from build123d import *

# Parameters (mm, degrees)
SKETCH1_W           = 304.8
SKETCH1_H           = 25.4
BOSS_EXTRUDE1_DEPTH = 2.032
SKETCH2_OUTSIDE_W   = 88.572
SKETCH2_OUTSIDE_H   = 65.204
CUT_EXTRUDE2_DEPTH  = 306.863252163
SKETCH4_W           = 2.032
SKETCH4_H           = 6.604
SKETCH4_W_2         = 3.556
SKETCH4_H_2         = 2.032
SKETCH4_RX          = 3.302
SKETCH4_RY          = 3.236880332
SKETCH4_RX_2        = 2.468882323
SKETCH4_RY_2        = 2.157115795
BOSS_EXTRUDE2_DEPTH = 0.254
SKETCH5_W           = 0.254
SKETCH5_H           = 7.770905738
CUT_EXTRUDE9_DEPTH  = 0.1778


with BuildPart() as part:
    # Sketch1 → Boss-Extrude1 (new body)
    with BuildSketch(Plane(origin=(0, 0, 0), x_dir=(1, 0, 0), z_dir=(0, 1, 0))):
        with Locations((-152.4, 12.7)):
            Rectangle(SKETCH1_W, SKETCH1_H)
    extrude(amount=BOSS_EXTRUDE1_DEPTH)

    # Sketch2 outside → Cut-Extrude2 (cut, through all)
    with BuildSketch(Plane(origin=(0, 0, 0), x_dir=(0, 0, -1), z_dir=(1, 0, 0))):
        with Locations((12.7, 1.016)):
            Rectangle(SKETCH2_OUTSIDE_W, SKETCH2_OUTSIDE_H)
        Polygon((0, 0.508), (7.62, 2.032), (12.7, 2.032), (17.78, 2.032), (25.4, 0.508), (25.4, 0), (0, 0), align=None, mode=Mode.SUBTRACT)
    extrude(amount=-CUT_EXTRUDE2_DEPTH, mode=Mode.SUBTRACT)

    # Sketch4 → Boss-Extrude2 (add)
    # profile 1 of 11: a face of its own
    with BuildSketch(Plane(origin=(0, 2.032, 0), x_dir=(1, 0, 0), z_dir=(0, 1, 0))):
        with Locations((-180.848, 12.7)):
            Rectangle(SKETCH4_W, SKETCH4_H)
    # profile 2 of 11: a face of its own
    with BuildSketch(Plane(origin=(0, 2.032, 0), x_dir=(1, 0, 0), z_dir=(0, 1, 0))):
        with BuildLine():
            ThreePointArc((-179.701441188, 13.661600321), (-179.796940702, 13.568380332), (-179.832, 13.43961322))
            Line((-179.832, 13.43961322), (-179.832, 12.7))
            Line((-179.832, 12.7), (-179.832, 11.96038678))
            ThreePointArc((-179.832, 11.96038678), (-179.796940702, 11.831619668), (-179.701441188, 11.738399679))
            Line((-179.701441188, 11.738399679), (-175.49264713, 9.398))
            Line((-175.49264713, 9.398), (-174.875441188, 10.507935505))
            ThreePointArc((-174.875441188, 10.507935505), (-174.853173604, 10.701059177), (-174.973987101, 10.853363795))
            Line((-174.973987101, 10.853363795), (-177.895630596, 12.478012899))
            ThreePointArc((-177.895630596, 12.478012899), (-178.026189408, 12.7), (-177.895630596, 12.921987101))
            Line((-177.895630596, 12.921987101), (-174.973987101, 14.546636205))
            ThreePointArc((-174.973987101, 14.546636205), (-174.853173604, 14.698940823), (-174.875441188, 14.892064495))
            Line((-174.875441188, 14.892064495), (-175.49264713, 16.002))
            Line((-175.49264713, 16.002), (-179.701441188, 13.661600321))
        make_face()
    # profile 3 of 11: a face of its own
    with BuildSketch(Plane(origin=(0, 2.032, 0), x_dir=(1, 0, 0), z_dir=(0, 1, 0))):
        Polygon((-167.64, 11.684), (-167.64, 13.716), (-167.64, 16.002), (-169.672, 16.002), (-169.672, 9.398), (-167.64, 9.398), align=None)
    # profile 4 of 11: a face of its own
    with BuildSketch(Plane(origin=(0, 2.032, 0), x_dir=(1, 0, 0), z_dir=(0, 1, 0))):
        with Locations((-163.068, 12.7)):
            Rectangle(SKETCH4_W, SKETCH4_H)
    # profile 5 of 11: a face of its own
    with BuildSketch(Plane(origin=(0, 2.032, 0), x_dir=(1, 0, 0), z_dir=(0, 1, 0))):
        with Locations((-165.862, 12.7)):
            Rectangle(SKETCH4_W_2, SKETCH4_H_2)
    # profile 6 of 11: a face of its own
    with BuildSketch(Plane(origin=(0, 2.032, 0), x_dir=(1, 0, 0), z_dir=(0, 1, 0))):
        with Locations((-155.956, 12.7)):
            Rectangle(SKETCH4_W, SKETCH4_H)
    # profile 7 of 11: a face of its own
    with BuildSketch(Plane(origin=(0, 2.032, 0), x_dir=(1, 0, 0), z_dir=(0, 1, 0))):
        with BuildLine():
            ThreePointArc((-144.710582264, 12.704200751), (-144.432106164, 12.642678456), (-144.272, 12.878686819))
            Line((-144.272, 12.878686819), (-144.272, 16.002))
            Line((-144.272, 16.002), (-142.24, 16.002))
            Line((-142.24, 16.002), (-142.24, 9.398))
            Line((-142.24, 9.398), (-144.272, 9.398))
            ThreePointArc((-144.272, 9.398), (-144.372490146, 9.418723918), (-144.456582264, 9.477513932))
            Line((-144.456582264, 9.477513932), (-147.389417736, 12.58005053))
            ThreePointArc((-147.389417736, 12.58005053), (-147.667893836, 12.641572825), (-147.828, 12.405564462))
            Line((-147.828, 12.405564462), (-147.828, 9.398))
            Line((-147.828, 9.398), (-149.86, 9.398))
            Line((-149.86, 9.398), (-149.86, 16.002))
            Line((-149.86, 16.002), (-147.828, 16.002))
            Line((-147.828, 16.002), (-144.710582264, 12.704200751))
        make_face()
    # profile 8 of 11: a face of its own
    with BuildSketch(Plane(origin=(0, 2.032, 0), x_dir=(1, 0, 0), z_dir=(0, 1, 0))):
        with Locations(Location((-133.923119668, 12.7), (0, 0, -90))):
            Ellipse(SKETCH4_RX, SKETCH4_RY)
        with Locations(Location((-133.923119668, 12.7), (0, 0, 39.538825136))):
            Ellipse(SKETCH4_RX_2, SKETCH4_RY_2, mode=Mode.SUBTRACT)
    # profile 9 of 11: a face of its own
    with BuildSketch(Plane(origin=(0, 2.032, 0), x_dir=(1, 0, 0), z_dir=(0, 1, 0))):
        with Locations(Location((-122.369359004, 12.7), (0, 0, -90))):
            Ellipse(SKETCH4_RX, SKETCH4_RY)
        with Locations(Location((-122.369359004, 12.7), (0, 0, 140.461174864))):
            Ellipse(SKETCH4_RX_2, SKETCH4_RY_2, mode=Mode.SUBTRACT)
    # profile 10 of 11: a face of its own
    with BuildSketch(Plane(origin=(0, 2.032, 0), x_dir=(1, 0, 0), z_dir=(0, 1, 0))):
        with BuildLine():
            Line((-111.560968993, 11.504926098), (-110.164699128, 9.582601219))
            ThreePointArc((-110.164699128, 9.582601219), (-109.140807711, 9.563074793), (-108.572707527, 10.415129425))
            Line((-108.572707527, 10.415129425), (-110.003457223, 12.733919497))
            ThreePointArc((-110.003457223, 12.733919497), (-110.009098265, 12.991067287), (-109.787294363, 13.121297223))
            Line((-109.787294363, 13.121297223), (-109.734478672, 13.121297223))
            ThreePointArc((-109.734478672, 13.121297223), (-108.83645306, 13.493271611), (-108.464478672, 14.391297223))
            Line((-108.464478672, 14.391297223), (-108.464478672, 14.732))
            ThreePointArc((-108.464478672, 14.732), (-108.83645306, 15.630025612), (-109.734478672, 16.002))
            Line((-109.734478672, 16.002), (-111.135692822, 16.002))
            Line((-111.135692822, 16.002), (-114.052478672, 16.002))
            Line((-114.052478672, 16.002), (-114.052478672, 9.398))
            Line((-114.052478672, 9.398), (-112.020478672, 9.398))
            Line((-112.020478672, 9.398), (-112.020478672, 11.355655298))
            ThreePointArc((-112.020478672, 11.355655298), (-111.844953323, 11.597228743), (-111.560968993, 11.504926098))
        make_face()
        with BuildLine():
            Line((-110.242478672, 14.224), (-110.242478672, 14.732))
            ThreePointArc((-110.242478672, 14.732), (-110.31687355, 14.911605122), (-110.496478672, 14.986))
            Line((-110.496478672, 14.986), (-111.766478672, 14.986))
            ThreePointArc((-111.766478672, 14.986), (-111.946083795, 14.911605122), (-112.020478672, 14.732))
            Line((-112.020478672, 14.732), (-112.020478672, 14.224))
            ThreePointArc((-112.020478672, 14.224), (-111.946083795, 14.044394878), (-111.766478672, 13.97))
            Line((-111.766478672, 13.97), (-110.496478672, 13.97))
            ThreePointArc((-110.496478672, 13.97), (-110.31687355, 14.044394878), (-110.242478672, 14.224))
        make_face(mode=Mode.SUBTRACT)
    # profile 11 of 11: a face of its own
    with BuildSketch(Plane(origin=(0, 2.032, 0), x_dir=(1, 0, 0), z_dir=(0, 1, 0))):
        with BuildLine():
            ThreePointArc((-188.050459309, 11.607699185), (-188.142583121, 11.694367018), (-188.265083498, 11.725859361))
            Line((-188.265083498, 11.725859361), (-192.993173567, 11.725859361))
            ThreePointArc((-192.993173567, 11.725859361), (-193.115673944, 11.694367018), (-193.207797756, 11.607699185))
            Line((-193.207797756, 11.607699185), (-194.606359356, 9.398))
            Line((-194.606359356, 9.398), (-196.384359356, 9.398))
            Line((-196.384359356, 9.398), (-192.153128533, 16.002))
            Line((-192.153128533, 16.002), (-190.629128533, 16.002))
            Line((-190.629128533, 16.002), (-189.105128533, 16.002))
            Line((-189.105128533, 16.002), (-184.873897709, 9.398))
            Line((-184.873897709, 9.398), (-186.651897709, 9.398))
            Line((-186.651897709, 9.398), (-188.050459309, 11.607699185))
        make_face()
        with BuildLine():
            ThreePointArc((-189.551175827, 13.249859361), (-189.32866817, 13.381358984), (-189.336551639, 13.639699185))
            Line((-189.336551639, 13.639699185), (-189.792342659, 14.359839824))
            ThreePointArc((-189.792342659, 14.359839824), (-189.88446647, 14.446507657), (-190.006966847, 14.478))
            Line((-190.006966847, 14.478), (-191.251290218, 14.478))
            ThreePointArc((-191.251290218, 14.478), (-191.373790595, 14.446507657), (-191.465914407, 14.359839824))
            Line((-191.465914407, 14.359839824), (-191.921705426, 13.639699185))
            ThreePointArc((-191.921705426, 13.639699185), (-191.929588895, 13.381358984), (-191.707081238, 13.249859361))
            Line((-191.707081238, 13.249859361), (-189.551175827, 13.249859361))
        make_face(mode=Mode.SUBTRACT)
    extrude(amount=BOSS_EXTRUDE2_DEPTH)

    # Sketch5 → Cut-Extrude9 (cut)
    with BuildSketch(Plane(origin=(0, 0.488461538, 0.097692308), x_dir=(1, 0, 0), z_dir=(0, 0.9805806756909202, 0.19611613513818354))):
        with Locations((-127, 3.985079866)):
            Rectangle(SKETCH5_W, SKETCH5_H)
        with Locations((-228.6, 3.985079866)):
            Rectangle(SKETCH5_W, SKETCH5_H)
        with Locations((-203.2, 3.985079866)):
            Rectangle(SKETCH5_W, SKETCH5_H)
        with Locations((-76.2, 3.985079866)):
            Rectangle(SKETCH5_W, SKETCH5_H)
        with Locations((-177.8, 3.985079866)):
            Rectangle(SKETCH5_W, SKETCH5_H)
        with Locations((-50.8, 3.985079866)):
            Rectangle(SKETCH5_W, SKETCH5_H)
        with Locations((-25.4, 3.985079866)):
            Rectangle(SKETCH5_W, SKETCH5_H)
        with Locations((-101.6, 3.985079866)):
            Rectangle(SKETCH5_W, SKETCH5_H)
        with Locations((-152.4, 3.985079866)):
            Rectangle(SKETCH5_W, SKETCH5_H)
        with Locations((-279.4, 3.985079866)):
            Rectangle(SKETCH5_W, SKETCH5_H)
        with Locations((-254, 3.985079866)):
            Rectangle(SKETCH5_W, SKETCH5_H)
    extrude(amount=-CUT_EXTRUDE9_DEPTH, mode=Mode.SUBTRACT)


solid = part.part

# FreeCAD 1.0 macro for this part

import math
import FreeCAD as App
import Part
import Sketcher
from FreeCAD import Vector
Q = App.Units.Quantity


def add_polygon(sketch, points):
    """Adds a closed chain of lines whose ends are joined by coincident constraints."""
    first, n = sketch.GeometryCount, len(points)
    for a, b in zip(points, points[1:] + points[:1]):
        sketch.addGeometry(Part.LineSegment(App.Vector(*a, 0), App.Vector(*b, 0)), False)
    for i in range(n):
        sketch.addConstraint(Sketcher.Constraint("Coincident", first + i, 2, first + (i + 1) % n, 1))

doc = App.newDocument("Part")
body = doc.addObject("PartDesign::Body", "Body")

# Sketch on XZ plane
sketch1 = doc.addObject("Sketcher::SketchObject", "Sketch")
body.addObject(sketch1)
sketch1.AttachmentSupport = (doc.XZ_Plane, [""])
sketch1.MapMode = "FlatFace"
add_polygon(sketch1, [(-305, -25), (-305, 0), (0, 0), (0, -25)])  # lines 0-3
sketch1.addConstraint([
    Sketcher.Constraint("Vertical", 0),
    Sketcher.Constraint("Horizontal", 1),
    Sketcher.Constraint("Vertical", 2),
    Sketcher.Constraint("Horizontal", 3),
    Sketcher.Constraint("Coincident", 1, 2, -1, 1),
    Sketcher.Constraint("DistanceX", 1, 1, 1, 2, Q("12 in")),
    Sketcher.Constraint("DistanceY", 0, 1, 0, 2, Q("1 in")),
])
pad1 = doc.addObject("PartDesign::Pad", "Pad")
body.addObject(pad1)
pad1.Profile = sketch1
pad1.Length = Q("0.08 in")
pad1.Reversed = True

# Sketch on YZ plane
sketch2 = doc.addObject("Sketcher::SketchObject", "Sketch001")
body.addObject(sketch2)
sketch2.AttachmentSupport = (doc.YZ_Plane, [""])
sketch2.MapMode = "FlatFace"
add_polygon(sketch2, [(33.6, 31.6), (-31.6, 31.6), (-31.6, -57), (33.6, -57)])  # lines 0-3
add_polygon(sketch2, [(0, 0), (0.5, 0), (2, -7.6), (2, -17.8), (0.5, -25.4), (0, -25.4)])  # lines 4-9
sketch2.addConstraint([
    Sketcher.Constraint("Horizontal", 0),
    Sketcher.Constraint("Vertical", 1),
    Sketcher.Constraint("Horizontal", 2),
    Sketcher.Constraint("Vertical", 3),
    Sketcher.Constraint("Horizontal", 4),
    Sketcher.Constraint("Vertical", 6),
    Sketcher.Constraint("Horizontal", 8),
    Sketcher.Constraint("Vertical", 9),
    Sketcher.Constraint("Coincident", 9, 2, -1, 1),
    Sketcher.Constraint("Vertical", 4, 2, 7, 2),
    Sketcher.Constraint("Equal", 5, 7),
    Sketcher.Constraint("DistanceY", 9, 1, 9, 2, Q("1 in")),
    Sketcher.Constraint("DistanceY", 6, 2, 6, 1, Q("0.4 in")),
    Sketcher.Constraint("DistanceX", 4, 1, 4, 2, Q("0.02 in")),
    Sketcher.Constraint("DistanceX", -1, 1, 5, 2, Q("0.08 in")),
    Sketcher.Constraint("DistanceX", 0, 2, 0, 1, 65.204),
    Sketcher.Constraint("DistanceY", 1, 2, 1, 1, 88.572),
    Sketcher.Constraint("DistanceX", 0, 2, -1, 1, 31.586),
    Sketcher.Constraint("DistanceY", -1, 1, 0, 2, 31.586),
])
pocket1 = doc.addObject("PartDesign::Pocket", "Pocket")
body.addObject(pocket1)
pocket1.Profile = sketch2
pocket1.Type = "ThroughAll"

# Sketch on XZ plane
sketch3 = doc.addObject("Sketcher::SketchObject", "Sketch002")
body.addObject(sketch3)
sketch3.AttachmentSupport = (doc.XZ_Plane, [""])
sketch3.MapMode = "FlatFace"
sketch3.AttachmentOffset = App.Placement(Vector(0, 0, -0.08 * 25.4), App.Rotation())
sketch3.addGeometry(Part.LineSegment(Vector(-181.864, -16.002, 0), Vector(-181.864, -9.398, 0)), False)  # 0
sketch3.addGeometry(Part.LineSegment(Vector(-181.864, -9.398, 0), Vector(-179.832, -9.398, 0)), False)  # 1
sketch3.addGeometry(Part.LineSegment(Vector(-179.832, -9.398, 0), Vector(-179.832, -11.960387, 0)), False)  # 2
sketch3.addGeometry(Part.ArcOfCircle(Part.Circle(Vector(-179.578, -11.960387, 0), Vector(0, 0, 1), 0.254), math.radians(119.077284), math.radians(180)), False)  # 3
sketch3.addGeometry(Part.LineSegment(Vector(-179.701441, -11.7384, 0), Vector(-175.492647, -9.398, 0)), False)  # 4
sketch3.addGeometry(Part.LineSegment(Vector(-175.492647, -9.398, 0), Vector(-174.875441, -10.507936, 0)), False)  # 5
sketch3.addGeometry(Part.ArcOfCircle(Part.Circle(Vector(-175.097428, -10.631377, 0), Vector(0, 0, 1), 0.254), math.radians(-60.922715), math.radians(29.077284)), False)  # 6
sketch3.addGeometry(Part.LineSegment(Vector(-174.973987, -10.853364, 0), Vector(-177.895631, -12.478013, 0)), False)  # 7
sketch3.addGeometry(Part.ArcOfCircle(Part.Circle(Vector(-177.772189, -12.7, 0), Vector(0, 0, 1), 0.254), math.radians(119.077285), math.radians(240.922715)), False)  # 8
sketch3.addGeometry(Part.LineSegment(Vector(-177.895631, -12.921987, 0), Vector(-174.973987, -14.546636, 0)), False)  # 9
sketch3.addGeometry(Part.ArcOfCircle(Part.Circle(Vector(-175.097428, -14.768623, 0), Vector(0, 0, 1), 0.254), math.radians(-29.077284), math.radians(60.922715)), False)  # 10
sketch3.addGeometry(Part.LineSegment(Vector(-174.875441, -14.892064, 0), Vector(-175.492647, -16.002, 0)), False)  # 11
sketch3.addGeometry(Part.LineSegment(Vector(-175.492647, -16.002, 0), Vector(-179.701441, -13.6616, 0)), False)  # 12
sketch3.addGeometry(Part.ArcOfCircle(Part.Circle(Vector(-179.578, -13.439613, 0), Vector(0, 0, 1), 0.254), math.radians(180), math.radians(240.922716)), False)  # 13
sketch3.addGeometry(Part.LineSegment(Vector(-179.832, -13.439613, 0), Vector(-179.832, -16.002, 0)), False)  # 14
sketch3.addGeometry(Part.LineSegment(Vector(-179.832, -16.002, 0), Vector(-181.864, -16.002, 0)), False)  # 15
add_polygon(sketch3, [(-167.64, -16.002), (-169.672, -16.002), (-169.672, -9.398), (-167.64, -9.398), (-167.64, -11.684), (-164.084, -11.684), (-164.084, -9.398), (-162.052, -9.398), (-162.052, -16.002), (-164.084, -16.002), (-164.084, -13.716), (-167.64, -13.716)])  # lines 16-27
add_polygon(sketch3, [(-156.972, -16.002), (-156.972, -9.398), (-154.94, -9.398), (-154.94, -16.002)])  # lines 28-31
sketch3.addGeometry(Part.ArcOfCircle(Part.Circle(Vector(-144.526, -12.878687, 0), Vector(0, 0, 1), 0.254), math.radians(0), math.radians(136.610604)), False)  # 32
sketch3.addGeometry(Part.LineSegment(Vector(-144.710582, -12.704201, 0), Vector(-147.828, -16.002, 0)), False)  # 33
sketch3.addGeometry(Part.LineSegment(Vector(-147.828, -16.002, 0), Vector(-149.86, -16.002, 0)), False)  # 34
sketch3.addGeometry(Part.LineSegment(Vector(-149.86, -16.002, 0), Vector(-149.86, -9.398, 0)), False)  # 35
sketch3.addGeometry(Part.LineSegment(Vector(-149.86, -9.398, 0), Vector(-147.828, -9.398, 0)), False)  # 36
sketch3.addGeometry(Part.LineSegment(Vector(-147.828, -9.398, 0), Vector(-147.828, -12.405564, 0)), False)  # 37
sketch3.addGeometry(Part.ArcOfCircle(Part.Circle(Vector(-147.574, -12.405564, 0), Vector(0, 0, 1), 0.254), math.radians(-180), math.radians(-43.389396)), False)  # 38
sketch3.addGeometry(Part.LineSegment(Vector(-147.389418, -12.580051, 0), Vector(-144.456582, -9.477514, 0)), False)  # 39
sketch3.addGeometry(Part.ArcOfCircle(Part.Circle(Vector(-144.272, -9.652, 0), Vector(0, 0, 1), 0.254), math.radians(90), math.radians(136.610604)), False)  # 40
sketch3.addGeometry(Part.LineSegment(Vector(-144.272, -9.398, 0), Vector(-142.24, -9.398, 0)), False)  # 41
sketch3.addGeometry(Part.LineSegment(Vector(-142.24, -9.398, 0), Vector(-142.24, -16.002, 0)), False)  # 42
sketch3.addGeometry(Part.LineSegment(Vector(-142.24, -16.002, 0), Vector(-144.272, -16.002, 0)), False)  # 43
sketch3.addGeometry(Part.LineSegment(Vector(-144.272, -16.002, 0), Vector(-144.272, -12.878687, 0)), False)  # 44
sketch3.addGeometry(Part.Ellipse(Vector(-133.92312, -9.398, 0), Vector(-137.16, -12.7, 0), Vector(-133.92312, -12.7, 0)), False)  # 45
sketch3.addGeometry(Part.Ellipse(Vector(-132.019134, -14.271693, 0), Vector(-132.549898, -11.036447, 0), Vector(-133.92312, -12.7, 0)), False)  # 46
sketch3.addGeometry(Part.Ellipse(Vector(-122.369359, -9.398, 0), Vector(-125.606239, -12.7, 0), Vector(-122.369359, -12.7, 0)), False)  # 47
sketch3.addGeometry(Part.Ellipse(Vector(-124.273345, -14.271693, 0), Vector(-120.996137, -14.363553, 0), Vector(-122.369359, -12.7, 0)), False)  # 48
sketch3.addGeometry(Part.LineSegment(Vector(-111.560969, -11.504926, 0), Vector(-110.164699, -9.582601, 0)), False)  # 49
sketch3.addGeometry(Part.ArcOfCircle(Part.Circle(Vector(-109.63492, -10.507936, 0), Vector(0, 0, 1), 1.066259), math.radians(4.993282), math.radians(119.792298)), False)  # 50
sketch3.addGeometry(Part.LineSegment(Vector(-108.572708, -10.415129, 0), Vector(-110.003457, -12.733919, 0)), False)  # 51
sketch3.addGeometry(Part.ArcOfCircle(Part.Circle(Vector(-109.787294, -12.867297, 0), Vector(0, 0, 1), 0.254), math.radians(148.324408), math.radians(270)), False)  # 52
sketch3.addGeometry(Part.LineSegment(Vector(-109.787294, -13.121297, 0), Vector(-109.734479, -13.121297, 0)), False)  # 53
sketch3.addGeometry(Part.ArcOfCircle(Part.Circle(Vector(-109.734479, -14.391297, 0), Vector(0, 0, 1), 1.27), math.radians(0), math.radians(90)), False)  # 54
sketch3.addGeometry(Part.LineSegment(Vector(-108.464479, -14.391297, 0), Vector(-108.464479, -14.732, 0)), False)  # 55
sketch3.addGeometry(Part.ArcOfCircle(Part.Circle(Vector(-109.734479, -14.732, 0), Vector(0, 0, 1), 1.27), math.radians(-90), math.radians(0)), False)  # 56
sketch3.addGeometry(Part.LineSegment(Vector(-109.734479, -16.002, 0), Vector(-114.052479, -16.002, 0)), False)  # 57
sketch3.addGeometry(Part.LineSegment(Vector(-114.052479, -16.002, 0), Vector(-114.052479, -9.398, 0)), False)  # 58
sketch3.addGeometry(Part.LineSegment(Vector(-114.052479, -9.398, 0), Vector(-112.020479, -9.398, 0)), False)  # 59
sketch3.addGeometry(Part.LineSegment(Vector(-112.020479, -9.398, 0), Vector(-112.020479, -11.355655, 0)), False)  # 60
sketch3.addGeometry(Part.ArcOfCircle(Part.Circle(Vector(-111.766479, -11.355655, 0), Vector(0, 0, 1), 0.254), math.radians(180), math.radians(324.007432)), False)  # 61
sketch3.addGeometry(Part.LineSegment(Vector(-110.242479, -14.732, 0), Vector(-110.242479, -14.224, 0)), False)  # 62
sketch3.addGeometry(Part.ArcOfCircle(Part.Circle(Vector(-110.496479, -14.224, 0), Vector(0, 0, 1), 0.254), math.radians(0), math.radians(90)), False)  # 63
sketch3.addGeometry(Part.LineSegment(Vector(-110.496479, -13.97, 0), Vector(-111.766479, -13.97, 0)), False)  # 64
sketch3.addGeometry(Part.ArcOfCircle(Part.Circle(Vector(-111.766479, -14.224, 0), Vector(0, 0, 1), 0.254), math.radians(90), math.radians(180)), False)  # 65
sketch3.addGeometry(Part.LineSegment(Vector(-112.020479, -14.224, 0), Vector(-112.020479, -14.732, 0)), False)  # 66
sketch3.addGeometry(Part.ArcOfCircle(Part.Circle(Vector(-111.766479, -14.732, 0), Vector(0, 0, 1), 0.254), math.radians(180), math.radians(270)), False)  # 67
sketch3.addGeometry(Part.LineSegment(Vector(-111.766479, -14.986, 0), Vector(-110.496479, -14.986, 0)), False)  # 68
sketch3.addGeometry(Part.ArcOfCircle(Part.Circle(Vector(-110.496479, -14.732, 0), Vector(0, 0, 1), 0.254), math.radians(-90), math.radians(0)), False)  # 69
sketch3.addGeometry(Part.ArcOfCircle(Part.Circle(Vector(-188.265084, -11.471859, 0), Vector(0, 0, 1), 0.254), math.radians(-90), math.radians(-32.330516)), False)  # 70
sketch3.addGeometry(Part.LineSegment(Vector(-188.050459, -11.607699, 0), Vector(-186.651898, -9.398, 0)), False)  # 71
sketch3.addGeometry(Part.LineSegment(Vector(-186.651898, -9.398, 0), Vector(-184.873898, -9.398, 0)), False)  # 72
sketch3.addGeometry(Part.LineSegment(Vector(-184.873898, -9.398, 0), Vector(-189.105129, -16.002, 0)), False)  # 73
sketch3.addGeometry(Part.LineSegment(Vector(-189.105129, -16.002, 0), Vector(-192.153129, -16.002, 0)), False)  # 74
sketch3.addGeometry(Part.LineSegment(Vector(-192.153129, -16.002, 0), Vector(-196.384359, -9.398, 0)), False)  # 75
sketch3.addGeometry(Part.LineSegment(Vector(-196.384359, -9.398, 0), Vector(-194.606359, -9.398, 0)), False)  # 76
sketch3.addGeometry(Part.LineSegment(Vector(-194.606359, -9.398, 0), Vector(-193.207798, -11.607699, 0)), False)  # 77
sketch3.addGeometry(Part.ArcOfCircle(Part.Circle(Vector(-192.993174, -11.471859, 0), Vector(0, 0, 1), 0.254), math.radians(-147.669484), math.radians(-90)), False)  # 78
sketch3.addGeometry(Part.LineSegment(Vector(-192.993174, -11.725859, 0), Vector(-188.265083, -11.725859, 0)), False)  # 79
sketch3.addGeometry(Part.LineSegment(Vector(-189.551176, -13.249859, 0), Vector(-191.707081, -13.249859, 0)), False)  # 80
sketch3.addGeometry(Part.ArcOfCircle(Part.Circle(Vector(-191.707081, -13.503859, 0), Vector(0, 0, 1), 0.254), math.radians(90), math.radians(212.330515)), False)  # 81
sketch3.addGeometry(Part.LineSegment(Vector(-191.921705, -13.639699, 0), Vector(-191.465914, -14.35984, 0)), False)  # 82
sketch3.addGeometry(Part.ArcOfCircle(Part.Circle(Vector(-191.25129, -14.224, 0), Vector(0, 0, 1), 0.254), math.radians(-147.669484), math.radians(-90)), False)  # 83
sketch3.addGeometry(Part.LineSegment(Vector(-191.25129, -14.478, 0), Vector(-190.006967, -14.478, 0)), False)  # 84
sketch3.addGeometry(Part.ArcOfCircle(Part.Circle(Vector(-190.006967, -14.224, 0), Vector(0, 0, 1), 0.254), math.radians(-90), math.radians(-32.330516)), False)  # 85
sketch3.addGeometry(Part.LineSegment(Vector(-189.792343, -14.35984, 0), Vector(-189.336552, -13.639699, 0)), False)  # 86
sketch3.addGeometry(Part.ArcOfCircle(Part.Circle(Vector(-189.551176, -13.503859, 0), Vector(0, 0, 1), 0.254), math.radians(-32.330515), math.radians(90)), False)  # 87
sketch3.addConstraint([
    Sketcher.Constraint("Block", 45),
    Sketcher.Constraint("Block", 46),
    Sketcher.Constraint("Block", 47),
    Sketcher.Constraint("Block", 48),
    Sketcher.Constraint("Coincident", 0, 2, 1, 1),
    Sketcher.Constraint("Coincident", 1, 2, 2, 1),
    Sketcher.Constraint("Tangent", 2, 2, 3, 2),
    Sketcher.Constraint("Tangent", 3, 1, 4, 1),
    Sketcher.Constraint("Coincident", 4, 2, 5, 1),
    Sketcher.Constraint("Tangent", 5, 2, 6, 2),
    Sketcher.Constraint("Tangent", 6, 1, 7, 1),
    Sketcher.Constraint("Tangent", 7, 2, 8, 1),
    Sketcher.Constraint("Tangent", 8, 2, 9, 1),
    Sketcher.Constraint("Tangent", 9, 2, 10, 2),
    Sketcher.Constraint("Tangent", 10, 1, 11, 1),
    Sketcher.Constraint("Coincident", 11, 2, 12, 1),
    Sketcher.Constraint("Tangent", 12, 2, 13, 2),
    Sketcher.Constraint("Tangent", 13, 1, 14, 1),
    Sketcher.Constraint("Coincident", 14, 2, 15, 1),
    Sketcher.Constraint("Coincident", 15, 2, 0, 1),
    Sketcher.Constraint("Tangent", 32, 2, 33, 1),
    Sketcher.Constraint("Coincident", 33, 2, 34, 1),
    Sketcher.Constraint("Coincident", 34, 2, 35, 1),
    Sketcher.Constraint("Coincident", 35, 2, 36, 1),
    Sketcher.Constraint("Coincident", 36, 2, 37, 1),
    Sketcher.Constraint("Tangent", 37, 2, 38, 1),
    Sketcher.Constraint("Tangent", 38, 2, 39, 1),
    Sketcher.Constraint("Tangent", 39, 2, 40, 2),
    Sketcher.Constraint("Tangent", 40, 1, 41, 1),
    Sketcher.Constraint("Coincident", 41, 2, 42, 1),
    Sketcher.Constraint("Coincident", 42, 2, 43, 1),
    Sketcher.Constraint("Coincident", 43, 2, 44, 1),
    Sketcher.Constraint("Tangent", 44, 2, 32, 1),
    Sketcher.Constraint("Coincident", 49, 2, 50, 2),
    Sketcher.Constraint("Coincident", 50, 1, 51, 1),
    Sketcher.Constraint("Tangent", 51, 2, 52, 1),
    Sketcher.Constraint("Tangent", 52, 2, 53, 1),
    Sketcher.Constraint("Tangent", 53, 2, 54, 2),
    Sketcher.Constraint("Tangent", 54, 1, 55, 1),
    Sketcher.Constraint("Tangent", 55, 2, 56, 2),
    Sketcher.Constraint("Tangent", 56, 1, 57, 1),
    Sketcher.Constraint("Coincident", 57, 2, 58, 1),
    Sketcher.Constraint("Coincident", 58, 2, 59, 1),
    Sketcher.Constraint("Coincident", 59, 2, 60, 1),
    Sketcher.Constraint("Tangent", 60, 2, 61, 1),
    Sketcher.Constraint("Tangent", 61, 2, 49, 1),
    Sketcher.Constraint("Tangent", 62, 2, 63, 1),
    Sketcher.Constraint("Tangent", 63, 2, 64, 1),
    Sketcher.Constraint("Tangent", 64, 2, 65, 1),
    Sketcher.Constraint("Tangent", 65, 2, 66, 1),
    Sketcher.Constraint("Tangent", 66, 2, 67, 1),
    Sketcher.Constraint("Tangent", 67, 2, 68, 1),
    Sketcher.Constraint("Tangent", 68, 2, 69, 1),
    Sketcher.Constraint("Tangent", 69, 2, 62, 1),
    Sketcher.Constraint("Tangent", 70, 2, 71, 1),
    Sketcher.Constraint("Coincident", 71, 2, 72, 1),
    Sketcher.Constraint("Coincident", 72, 2, 73, 1),
    Sketcher.Constraint("Coincident", 73, 2, 74, 1),
    Sketcher.Constraint("Coincident", 74, 2, 75, 1),
    Sketcher.Constraint("Coincident", 75, 2, 76, 1),
    Sketcher.Constraint("Coincident", 76, 2, 77, 1),
    Sketcher.Constraint("Tangent", 77, 2, 78, 1),
    Sketcher.Constraint("Tangent", 78, 2, 79, 1),
    Sketcher.Constraint("Tangent", 79, 2, 70, 1),
    Sketcher.Constraint("Tangent", 80, 2, 81, 1),
    Sketcher.Constraint("Tangent", 81, 2, 82, 1),
    Sketcher.Constraint("Tangent", 82, 2, 83, 1),
    Sketcher.Constraint("Tangent", 83, 2, 84, 1),
    Sketcher.Constraint("Tangent", 84, 2, 85, 1),
    Sketcher.Constraint("Tangent", 85, 2, 86, 1),
    Sketcher.Constraint("Tangent", 86, 2, 87, 1),
    Sketcher.Constraint("Tangent", 87, 2, 80, 1),
    Sketcher.Constraint("Vertical", 0),
    Sketcher.Constraint("Horizontal", 1),
    Sketcher.Constraint("Vertical", 2),
    Sketcher.Constraint("Vertical", 14),
    Sketcher.Constraint("Horizontal", 15),
    Sketcher.Constraint("Horizontal", 16),
    Sketcher.Constraint("Vertical", 17),
    Sketcher.Constraint("Horizontal", 18),
    Sketcher.Constraint("Vertical", 19),
    Sketcher.Constraint("Horizontal", 20),
    Sketcher.Constraint("Vertical", 21),
    Sketcher.Constraint("Horizontal", 22),
    Sketcher.Constraint("Vertical", 23),
    Sketcher.Constraint("Horizontal", 24),
    Sketcher.Constraint("Vertical", 25),
    Sketcher.Constraint("Horizontal", 26),
    Sketcher.Constraint("Vertical", 27),
    Sketcher.Constraint("Vertical", 28),
    Sketcher.Constraint("Horizontal", 29),
    Sketcher.Constraint("Vertical", 30),
    Sketcher.Constraint("Horizontal", 31),
    Sketcher.Constraint("Horizontal", 34),
    Sketcher.Constraint("Vertical", 35),
    Sketcher.Constraint("Horizontal", 36),
    Sketcher.Constraint("Vertical", 37),
    Sketcher.Constraint("Horizontal", 41),
    Sketcher.Constraint("Vertical", 42),
    Sketcher.Constraint("Horizontal", 43),
    Sketcher.Constraint("Vertical", 44),
    Sketcher.Constraint("Horizontal", 53),
    Sketcher.Constraint("Vertical", 55),
    Sketcher.Constraint("Horizontal", 57),
    Sketcher.Constraint("Vertical", 58),
    Sketcher.Constraint("Horizontal", 59),
    Sketcher.Constraint("Vertical", 60),
    Sketcher.Constraint("Vertical", 62),
    Sketcher.Constraint("Horizontal", 64),
    Sketcher.Constraint("Vertical", 66),
    Sketcher.Constraint("Horizontal", 68),
    Sketcher.Constraint("Horizontal", 72),
    Sketcher.Constraint("Horizontal", 74),
    Sketcher.Constraint("Horizontal", 76),
    Sketcher.Constraint("Horizontal", 79),
    Sketcher.Constraint("Horizontal", 80),
    Sketcher.Constraint("Horizontal", 84),
    Sketcher.Constraint("Equal", 3, 6),
    Sketcher.Constraint("Equal", 6, 8),
    Sketcher.Constraint("Equal", 8, 10),
    Sketcher.Constraint("Equal", 10, 13),
    Sketcher.Constraint("Equal", 13, 32),
    Sketcher.Constraint("Equal", 32, 38),
    Sketcher.Constraint("Equal", 38, 40),
    Sketcher.Constraint("Equal", 40, 52),
    Sketcher.Constraint("Equal", 54, 56),
    Sketcher.Constraint("Equal", 52, 61),
    Sketcher.Constraint("Equal", 61, 63),
    Sketcher.Constraint("Equal", 63, 65),
    Sketcher.Constraint("Equal", 65, 67),
    Sketcher.Constraint("Equal", 67, 69),
    Sketcher.Constraint("Equal", 69, 70),
    Sketcher.Constraint("Equal", 70, 78),
    Sketcher.Constraint("Equal", 78, 81),
    Sketcher.Constraint("Equal", 81, 83),
    Sketcher.Constraint("Equal", 83, 85),
    Sketcher.Constraint("Equal", 85, 87),
    Sketcher.Constraint("Perpendicular", 4, 5),
    Sketcher.Constraint("Perpendicular", 5, 7),
    Sketcher.Constraint("Perpendicular", 9, 11),
    Sketcher.Constraint("Perpendicular", 11, 12),
    Sketcher.Constraint("Parallel", 33, 39),
    Sketcher.Constraint("Parallel", 77, 82),
    Sketcher.Constraint("Parallel", 71, 86),
    Sketcher.Constraint("Horizontal", 56, 3, 67, 3),
    Sketcher.Constraint("Horizontal", 65, 3, 83, 3),
    Sketcher.Constraint("Horizontal", 1, 2, 4, 2),
    Sketcher.Constraint("Horizontal", 50, 3, 5, 2),
    Sketcher.Constraint("Horizontal", 11, 2, 14, 2),
    Sketcher.Constraint("Horizontal", 15, 2, 16, 2),
    Sketcher.Constraint("Horizontal", 4, 2, 17, 2),
    Sketcher.Constraint("Horizontal", 18, 2, 21, 2),
    Sketcher.Constraint("Horizontal", 16, 2, 23, 2),
    Sketcher.Constraint("Horizontal", 22, 2, 28, 2),
    Sketcher.Constraint("Horizontal", 27, 2, 30, 2),
    Sketcher.Constraint("Horizontal", 31, 2, 33, 2),
    Sketcher.Constraint("Horizontal", 29, 2, 35, 2),
    Sketcher.Constraint("Horizontal", 36, 2, 40, 1),
    Sketcher.Constraint("Horizontal", 34, 2, 42, 2),
    Sketcher.Constraint("Horizontal", 43, 2, 56, 1),
    Sketcher.Constraint("Horizontal", 41, 2, 58, 2),
    Sketcher.Constraint("Horizontal", 59, 2, 71, 2),
    Sketcher.Constraint("Horizontal", 57, 2, 73, 2),
    Sketcher.Constraint("Horizontal", 72, 2, 75, 2),
    Sketcher.Constraint("Horizontal", 70, 2, 77, 2),
    Sketcher.Constraint("Vertical", 6, 3, 10, 3),
    Sketcher.Constraint("Vertical", 3, 3, 13, 3),
    Sketcher.Constraint("Vertical", 61, 3, 65, 3),
    Sketcher.Constraint("Vertical", 7, 2, 8, 2),
    Sketcher.Constraint("Vertical", 4, 2, 11, 2),
    Sketcher.Constraint("Vertical", 21, 2, 24, 2),
    Sketcher.Constraint("Vertical", 19, 2, 26, 2),
    Sketcher.Constraint("Vertical", 33, 2, 36, 2),
    Sketcher.Constraint("Vertical", 40, 1, 43, 2),
    Sketcher.Constraint("Equal", 15, 16),
    Sketcher.Constraint("Equal", 18, 22),
    Sketcher.Constraint("Equal", 24, 29),
    Sketcher.Constraint("Equal", 31, 34),
    Sketcher.Constraint("Equal", 36, 41),
    Sketcher.Constraint("Equal", 43, 59),
    Sketcher.Constraint("Equal", 72, 76),
    Sketcher.Constraint("Equal", 21, 25),
    Sketcher.Constraint("Equal", 73, 75),
    Sketcher.Constraint("Radius", 3, Q("0.01 in")),
    Sketcher.Constraint("Radius", 54, Q("0.05 in")),
    Sketcher.Constraint("DistanceX", 1, 1, 1, 2, Q("0.08 in")),
    Sketcher.Constraint("DistanceX", 20, 1, 20, 2, Q("0.14 in")),
    Sketcher.Constraint("DistanceX", 57, 2, 57, 1, Q("0.17 in")),
    Sketcher.Constraint("DistanceX", 64, 2, 64, 1, Q("0.05 in")),
    Sketcher.Constraint("DistanceX", 72, 1, 72, 2, Q("0.07 in")),
    Sketcher.Constraint("DistanceX", 74, 2, 74, 1, Q("0.12 in")),
    Sketcher.Constraint("DistanceY", 0, 1, 0, 2, Q("0.26 in")),
    Sketcher.Constraint("DistanceY", 19, 2, 19, 1, Q("0.09 in")),
    Sketcher.Constraint("DistanceY", 62, 1, 62, 2, Q("0.02 in")),
    Sketcher.Constraint("DistanceY", 8, 3, -1, 1, Q("0.5 in")),
    Sketcher.Constraint("DistanceX", 18, 2, -1, 1, Q("6.6 in")),
    Sketcher.Constraint("DistanceX", 29, 2, -1, 1, Q("6.1 in")),
    Sketcher.Constraint("DistanceX", 34, 2, -1, 1, Q("5.9 in")),
    Sketcher.Constraint("DistanceX", 41, 2, -1, 1, Q("5.6 in")),
    Sketcher.Constraint("Distance", 5, Q("0.05 in")),
    Sketcher.Constraint("DistanceX", 3, 3, -1, 1, Q("7.07 in")),
    Sketcher.Constraint("Radius", 50, 1.066259),
    Sketcher.Constraint("DistanceX", 71, 2, -1, 1, Q("7.3484999 in")),
    Sketcher.Constraint("Distance", 49, 2.3759),
    Sketcher.Constraint("Distance", 71, 2.615099),
    Sketcher.Constraint("DistanceX", 79, 1, 79, 2, 4.72809),
    Sketcher.Constraint("DistanceY", 3, 1, -1, 1, 11.7384),
    Sketcher.Constraint("DistanceY", 32, 2, -1, 1, 12.704201),
    Sketcher.Constraint("DistanceX", 49, 2, -1, 1, 110.164699),
    Sketcher.Constraint("DistanceY", 49, 2, -1, 1, 9.582601),
    Sketcher.Constraint("DistanceY", 70, 2, -1, 1, 11.607699),
    Sketcher.Constraint("DistanceY", 81, 2, -1, 1, 13.639699),
    Sketcher.Constraint("Distance", 51, 2.724671),
    Sketcher.Constraint("DistanceX", 53, 1, 53, 2, 0.052816),
    Sketcher.Constraint("DistanceX", 80, 2, 80, 1, 2.155905),
    Sketcher.Constraint("DistanceY", 2, 2, 2, 1, 2.562387),
    Sketcher.Constraint("DistanceY", 55, 2, 55, 1, 0.340703),
    Sketcher.Constraint("DistanceY", 60, 2, 60, 1, 1.957655),
    Sketcher.Constraint("DistanceX", 81, 3, -1, 1, 191.707081),
])
pad2 = doc.addObject("PartDesign::Pad", "Pad001")
body.addObject(pad2)
pad2.Profile = sketch3
pad2.Length = Q("0.01 in")
pad2.Reversed = True

# Sketch on an angled plane
sketch4 = doc.addObject("Sketcher::SketchObject", "Sketch003")
body.addObject(sketch4)
sketch4.Placement = App.Placement(Vector(0, 0.488462, 0.097692), App.Rotation(Vector(1, 0, 0), Vector(0, 0.196116135, -0.980580676), Vector(0, 0.980580676, 0.196116135), "ZXY"))
add_polygon(sketch4, [(-127.13, 7.87), (-127.13, 0.1), (-126.87, 0.1), (-126.87, 7.87)])  # lines 0-3
add_polygon(sketch4, [(-228.73, 7.87), (-228.73, 0.1), (-228.47, 0.1), (-228.47, 7.87)])  # lines 4-7
add_polygon(sketch4, [(-203.33, 7.87), (-203.33, 0.1), (-203.07, 0.1), (-203.07, 7.87)])  # lines 8-11
add_polygon(sketch4, [(-76.33, 7.87), (-76.33, 0.1), (-76.07, 0.1), (-76.07, 7.87)])  # lines 12-15
add_polygon(sketch4, [(-177.93, 7.87), (-177.93, 0.1), (-177.67, 0.1), (-177.67, 7.87)])  # lines 16-19
add_polygon(sketch4, [(-50.93, 7.87), (-50.93, 0.1), (-50.67, 0.1), (-50.67, 7.87)])  # lines 20-23
add_polygon(sketch4, [(-25.53, 7.87), (-25.53, 0.1), (-25.27, 0.1), (-25.27, 7.87)])  # lines 24-27
add_polygon(sketch4, [(-101.73, 7.87), (-101.73, 0.1), (-101.47, 0.1), (-101.47, 7.87)])  # lines 28-31
add_polygon(sketch4, [(-152.53, 7.87), (-152.53, 0.1), (-152.27, 0.1), (-152.27, 7.87)])  # lines 32-35
add_polygon(sketch4, [(-279.53, 7.87), (-279.53, 0.1), (-279.27, 0.1), (-279.27, 7.87)])  # lines 36-39
add_polygon(sketch4, [(-254.13, 7.87), (-254.13, 0.1), (-253.87, 0.1), (-253.87, 7.87)])  # lines 40-43
sketch4.addConstraint([
    Sketcher.Constraint("Vertical", 0),
    Sketcher.Constraint("Horizontal", 1),
    Sketcher.Constraint("Vertical", 2),
    Sketcher.Constraint("Horizontal", 3),
    Sketcher.Constraint("Vertical", 4),
    Sketcher.Constraint("Horizontal", 5),
    Sketcher.Constraint("Vertical", 6),
    Sketcher.Constraint("Horizontal", 7),
    Sketcher.Constraint("Vertical", 8),
    Sketcher.Constraint("Horizontal", 9),
    Sketcher.Constraint("Vertical", 10),
    Sketcher.Constraint("Horizontal", 11),
    Sketcher.Constraint("Vertical", 12),
    Sketcher.Constraint("Horizontal", 13),
    Sketcher.Constraint("Vertical", 14),
    Sketcher.Constraint("Horizontal", 15),
    Sketcher.Constraint("Vertical", 16),
    Sketcher.Constraint("Horizontal", 17),
    Sketcher.Constraint("Vertical", 18),
    Sketcher.Constraint("Horizontal", 19),
    Sketcher.Constraint("Vertical", 20),
    Sketcher.Constraint("Horizontal", 21),
    Sketcher.Constraint("Vertical", 22),
    Sketcher.Constraint("Horizontal", 23),
    Sketcher.Constraint("Vertical", 24),
    Sketcher.Constraint("Horizontal", 25),
    Sketcher.Constraint("Vertical", 26),
    Sketcher.Constraint("Horizontal", 27),
    Sketcher.Constraint("Vertical", 28),
    Sketcher.Constraint("Horizontal", 29),
    Sketcher.Constraint("Vertical", 30),
    Sketcher.Constraint("Horizontal", 31),
    Sketcher.Constraint("Vertical", 32),
    Sketcher.Constraint("Horizontal", 33),
    Sketcher.Constraint("Vertical", 34),
    Sketcher.Constraint("Horizontal", 35),
    Sketcher.Constraint("Vertical", 36),
    Sketcher.Constraint("Horizontal", 37),
    Sketcher.Constraint("Vertical", 38),
    Sketcher.Constraint("Horizontal", 39),
    Sketcher.Constraint("Vertical", 40),
    Sketcher.Constraint("Horizontal", 41),
    Sketcher.Constraint("Vertical", 42),
    Sketcher.Constraint("Horizontal", 43),
    Sketcher.Constraint("Horizontal", 1, 2, 4, 2),
    Sketcher.Constraint("Horizontal", 3, 2, 6, 2),
    Sketcher.Constraint("Horizontal", 5, 2, 8, 2),
    Sketcher.Constraint("Horizontal", 7, 2, 10, 2),
    Sketcher.Constraint("Horizontal", 9, 2, 12, 2),
    Sketcher.Constraint("Horizontal", 11, 2, 14, 2),
    Sketcher.Constraint("Horizontal", 13, 2, 16, 2),
    Sketcher.Constraint("Horizontal", 15, 2, 18, 2),
    Sketcher.Constraint("Horizontal", 17, 2, 20, 2),
    Sketcher.Constraint("Horizontal", 19, 2, 22, 2),
    Sketcher.Constraint("Horizontal", 21, 2, 24, 2),
    Sketcher.Constraint("Horizontal", 23, 2, 26, 2),
    Sketcher.Constraint("Horizontal", 25, 2, 28, 2),
    Sketcher.Constraint("Horizontal", 27, 2, 30, 2),
    Sketcher.Constraint("Horizontal", 29, 2, 32, 2),
    Sketcher.Constraint("Horizontal", 31, 2, 34, 2),
    Sketcher.Constraint("Horizontal", 33, 2, 36, 2),
    Sketcher.Constraint("Horizontal", 35, 2, 38, 2),
    Sketcher.Constraint("Horizontal", 37, 2, 40, 2),
    Sketcher.Constraint("Horizontal", 39, 2, 42, 2),
    Sketcher.Constraint("Equal", 3, 5),
    Sketcher.Constraint("Equal", 7, 9),
    Sketcher.Constraint("Equal", 11, 13),
    Sketcher.Constraint("Equal", 15, 17),
    Sketcher.Constraint("Equal", 19, 21),
    Sketcher.Constraint("Equal", 23, 25),
    Sketcher.Constraint("Equal", 27, 29),
    Sketcher.Constraint("Equal", 31, 33),
    Sketcher.Constraint("Equal", 35, 37),
    Sketcher.Constraint("Equal", 39, 41),
    Sketcher.Constraint("DistanceX", 4, 2, 0, 2, Q("4 in")),
    Sketcher.Constraint("DistanceX", 4, 2, 8, 2, Q("1 in")),
    Sketcher.Constraint("DistanceX", 0, 2, 12, 2, Q("2 in")),
    Sketcher.Constraint("DistanceX", 8, 2, 16, 2, Q("1 in")),
    Sketcher.Constraint("DistanceX", 12, 2, 20, 2, Q("1 in")),
    Sketcher.Constraint("DistanceX", 20, 2, 24, 2, Q("1 in")),
    Sketcher.Constraint("DistanceX", 0, 2, 28, 2, Q("1 in")),
    Sketcher.Constraint("DistanceX", 32, 2, 0, 2, Q("1 in")),
    Sketcher.Constraint("DistanceX", 36, 2, 4, 2, Q("2 in")),
    Sketcher.Constraint("DistanceX", 36, 2, 40, 2, Q("1 in")),
    Sketcher.Constraint("DistanceX", 1, 1, 1, 2, Q("0.01 in")),
    Sketcher.Constraint("DistanceX", 0, 2, -1, 1, Q("5.005 in")),
    Sketcher.Constraint("DistanceY", 0, 2, 0, 1, 7.770906),
    Sketcher.Constraint("DistanceY", -1, 1, 0, 2, 0.099627),
])
pocket2 = doc.addObject("PartDesign::Pocket", "Pocket001")
body.addObject(pocket2)
pocket2.Profile = sketch4
pocket2.Length = Q("0.007 in")

doc.recompute()
